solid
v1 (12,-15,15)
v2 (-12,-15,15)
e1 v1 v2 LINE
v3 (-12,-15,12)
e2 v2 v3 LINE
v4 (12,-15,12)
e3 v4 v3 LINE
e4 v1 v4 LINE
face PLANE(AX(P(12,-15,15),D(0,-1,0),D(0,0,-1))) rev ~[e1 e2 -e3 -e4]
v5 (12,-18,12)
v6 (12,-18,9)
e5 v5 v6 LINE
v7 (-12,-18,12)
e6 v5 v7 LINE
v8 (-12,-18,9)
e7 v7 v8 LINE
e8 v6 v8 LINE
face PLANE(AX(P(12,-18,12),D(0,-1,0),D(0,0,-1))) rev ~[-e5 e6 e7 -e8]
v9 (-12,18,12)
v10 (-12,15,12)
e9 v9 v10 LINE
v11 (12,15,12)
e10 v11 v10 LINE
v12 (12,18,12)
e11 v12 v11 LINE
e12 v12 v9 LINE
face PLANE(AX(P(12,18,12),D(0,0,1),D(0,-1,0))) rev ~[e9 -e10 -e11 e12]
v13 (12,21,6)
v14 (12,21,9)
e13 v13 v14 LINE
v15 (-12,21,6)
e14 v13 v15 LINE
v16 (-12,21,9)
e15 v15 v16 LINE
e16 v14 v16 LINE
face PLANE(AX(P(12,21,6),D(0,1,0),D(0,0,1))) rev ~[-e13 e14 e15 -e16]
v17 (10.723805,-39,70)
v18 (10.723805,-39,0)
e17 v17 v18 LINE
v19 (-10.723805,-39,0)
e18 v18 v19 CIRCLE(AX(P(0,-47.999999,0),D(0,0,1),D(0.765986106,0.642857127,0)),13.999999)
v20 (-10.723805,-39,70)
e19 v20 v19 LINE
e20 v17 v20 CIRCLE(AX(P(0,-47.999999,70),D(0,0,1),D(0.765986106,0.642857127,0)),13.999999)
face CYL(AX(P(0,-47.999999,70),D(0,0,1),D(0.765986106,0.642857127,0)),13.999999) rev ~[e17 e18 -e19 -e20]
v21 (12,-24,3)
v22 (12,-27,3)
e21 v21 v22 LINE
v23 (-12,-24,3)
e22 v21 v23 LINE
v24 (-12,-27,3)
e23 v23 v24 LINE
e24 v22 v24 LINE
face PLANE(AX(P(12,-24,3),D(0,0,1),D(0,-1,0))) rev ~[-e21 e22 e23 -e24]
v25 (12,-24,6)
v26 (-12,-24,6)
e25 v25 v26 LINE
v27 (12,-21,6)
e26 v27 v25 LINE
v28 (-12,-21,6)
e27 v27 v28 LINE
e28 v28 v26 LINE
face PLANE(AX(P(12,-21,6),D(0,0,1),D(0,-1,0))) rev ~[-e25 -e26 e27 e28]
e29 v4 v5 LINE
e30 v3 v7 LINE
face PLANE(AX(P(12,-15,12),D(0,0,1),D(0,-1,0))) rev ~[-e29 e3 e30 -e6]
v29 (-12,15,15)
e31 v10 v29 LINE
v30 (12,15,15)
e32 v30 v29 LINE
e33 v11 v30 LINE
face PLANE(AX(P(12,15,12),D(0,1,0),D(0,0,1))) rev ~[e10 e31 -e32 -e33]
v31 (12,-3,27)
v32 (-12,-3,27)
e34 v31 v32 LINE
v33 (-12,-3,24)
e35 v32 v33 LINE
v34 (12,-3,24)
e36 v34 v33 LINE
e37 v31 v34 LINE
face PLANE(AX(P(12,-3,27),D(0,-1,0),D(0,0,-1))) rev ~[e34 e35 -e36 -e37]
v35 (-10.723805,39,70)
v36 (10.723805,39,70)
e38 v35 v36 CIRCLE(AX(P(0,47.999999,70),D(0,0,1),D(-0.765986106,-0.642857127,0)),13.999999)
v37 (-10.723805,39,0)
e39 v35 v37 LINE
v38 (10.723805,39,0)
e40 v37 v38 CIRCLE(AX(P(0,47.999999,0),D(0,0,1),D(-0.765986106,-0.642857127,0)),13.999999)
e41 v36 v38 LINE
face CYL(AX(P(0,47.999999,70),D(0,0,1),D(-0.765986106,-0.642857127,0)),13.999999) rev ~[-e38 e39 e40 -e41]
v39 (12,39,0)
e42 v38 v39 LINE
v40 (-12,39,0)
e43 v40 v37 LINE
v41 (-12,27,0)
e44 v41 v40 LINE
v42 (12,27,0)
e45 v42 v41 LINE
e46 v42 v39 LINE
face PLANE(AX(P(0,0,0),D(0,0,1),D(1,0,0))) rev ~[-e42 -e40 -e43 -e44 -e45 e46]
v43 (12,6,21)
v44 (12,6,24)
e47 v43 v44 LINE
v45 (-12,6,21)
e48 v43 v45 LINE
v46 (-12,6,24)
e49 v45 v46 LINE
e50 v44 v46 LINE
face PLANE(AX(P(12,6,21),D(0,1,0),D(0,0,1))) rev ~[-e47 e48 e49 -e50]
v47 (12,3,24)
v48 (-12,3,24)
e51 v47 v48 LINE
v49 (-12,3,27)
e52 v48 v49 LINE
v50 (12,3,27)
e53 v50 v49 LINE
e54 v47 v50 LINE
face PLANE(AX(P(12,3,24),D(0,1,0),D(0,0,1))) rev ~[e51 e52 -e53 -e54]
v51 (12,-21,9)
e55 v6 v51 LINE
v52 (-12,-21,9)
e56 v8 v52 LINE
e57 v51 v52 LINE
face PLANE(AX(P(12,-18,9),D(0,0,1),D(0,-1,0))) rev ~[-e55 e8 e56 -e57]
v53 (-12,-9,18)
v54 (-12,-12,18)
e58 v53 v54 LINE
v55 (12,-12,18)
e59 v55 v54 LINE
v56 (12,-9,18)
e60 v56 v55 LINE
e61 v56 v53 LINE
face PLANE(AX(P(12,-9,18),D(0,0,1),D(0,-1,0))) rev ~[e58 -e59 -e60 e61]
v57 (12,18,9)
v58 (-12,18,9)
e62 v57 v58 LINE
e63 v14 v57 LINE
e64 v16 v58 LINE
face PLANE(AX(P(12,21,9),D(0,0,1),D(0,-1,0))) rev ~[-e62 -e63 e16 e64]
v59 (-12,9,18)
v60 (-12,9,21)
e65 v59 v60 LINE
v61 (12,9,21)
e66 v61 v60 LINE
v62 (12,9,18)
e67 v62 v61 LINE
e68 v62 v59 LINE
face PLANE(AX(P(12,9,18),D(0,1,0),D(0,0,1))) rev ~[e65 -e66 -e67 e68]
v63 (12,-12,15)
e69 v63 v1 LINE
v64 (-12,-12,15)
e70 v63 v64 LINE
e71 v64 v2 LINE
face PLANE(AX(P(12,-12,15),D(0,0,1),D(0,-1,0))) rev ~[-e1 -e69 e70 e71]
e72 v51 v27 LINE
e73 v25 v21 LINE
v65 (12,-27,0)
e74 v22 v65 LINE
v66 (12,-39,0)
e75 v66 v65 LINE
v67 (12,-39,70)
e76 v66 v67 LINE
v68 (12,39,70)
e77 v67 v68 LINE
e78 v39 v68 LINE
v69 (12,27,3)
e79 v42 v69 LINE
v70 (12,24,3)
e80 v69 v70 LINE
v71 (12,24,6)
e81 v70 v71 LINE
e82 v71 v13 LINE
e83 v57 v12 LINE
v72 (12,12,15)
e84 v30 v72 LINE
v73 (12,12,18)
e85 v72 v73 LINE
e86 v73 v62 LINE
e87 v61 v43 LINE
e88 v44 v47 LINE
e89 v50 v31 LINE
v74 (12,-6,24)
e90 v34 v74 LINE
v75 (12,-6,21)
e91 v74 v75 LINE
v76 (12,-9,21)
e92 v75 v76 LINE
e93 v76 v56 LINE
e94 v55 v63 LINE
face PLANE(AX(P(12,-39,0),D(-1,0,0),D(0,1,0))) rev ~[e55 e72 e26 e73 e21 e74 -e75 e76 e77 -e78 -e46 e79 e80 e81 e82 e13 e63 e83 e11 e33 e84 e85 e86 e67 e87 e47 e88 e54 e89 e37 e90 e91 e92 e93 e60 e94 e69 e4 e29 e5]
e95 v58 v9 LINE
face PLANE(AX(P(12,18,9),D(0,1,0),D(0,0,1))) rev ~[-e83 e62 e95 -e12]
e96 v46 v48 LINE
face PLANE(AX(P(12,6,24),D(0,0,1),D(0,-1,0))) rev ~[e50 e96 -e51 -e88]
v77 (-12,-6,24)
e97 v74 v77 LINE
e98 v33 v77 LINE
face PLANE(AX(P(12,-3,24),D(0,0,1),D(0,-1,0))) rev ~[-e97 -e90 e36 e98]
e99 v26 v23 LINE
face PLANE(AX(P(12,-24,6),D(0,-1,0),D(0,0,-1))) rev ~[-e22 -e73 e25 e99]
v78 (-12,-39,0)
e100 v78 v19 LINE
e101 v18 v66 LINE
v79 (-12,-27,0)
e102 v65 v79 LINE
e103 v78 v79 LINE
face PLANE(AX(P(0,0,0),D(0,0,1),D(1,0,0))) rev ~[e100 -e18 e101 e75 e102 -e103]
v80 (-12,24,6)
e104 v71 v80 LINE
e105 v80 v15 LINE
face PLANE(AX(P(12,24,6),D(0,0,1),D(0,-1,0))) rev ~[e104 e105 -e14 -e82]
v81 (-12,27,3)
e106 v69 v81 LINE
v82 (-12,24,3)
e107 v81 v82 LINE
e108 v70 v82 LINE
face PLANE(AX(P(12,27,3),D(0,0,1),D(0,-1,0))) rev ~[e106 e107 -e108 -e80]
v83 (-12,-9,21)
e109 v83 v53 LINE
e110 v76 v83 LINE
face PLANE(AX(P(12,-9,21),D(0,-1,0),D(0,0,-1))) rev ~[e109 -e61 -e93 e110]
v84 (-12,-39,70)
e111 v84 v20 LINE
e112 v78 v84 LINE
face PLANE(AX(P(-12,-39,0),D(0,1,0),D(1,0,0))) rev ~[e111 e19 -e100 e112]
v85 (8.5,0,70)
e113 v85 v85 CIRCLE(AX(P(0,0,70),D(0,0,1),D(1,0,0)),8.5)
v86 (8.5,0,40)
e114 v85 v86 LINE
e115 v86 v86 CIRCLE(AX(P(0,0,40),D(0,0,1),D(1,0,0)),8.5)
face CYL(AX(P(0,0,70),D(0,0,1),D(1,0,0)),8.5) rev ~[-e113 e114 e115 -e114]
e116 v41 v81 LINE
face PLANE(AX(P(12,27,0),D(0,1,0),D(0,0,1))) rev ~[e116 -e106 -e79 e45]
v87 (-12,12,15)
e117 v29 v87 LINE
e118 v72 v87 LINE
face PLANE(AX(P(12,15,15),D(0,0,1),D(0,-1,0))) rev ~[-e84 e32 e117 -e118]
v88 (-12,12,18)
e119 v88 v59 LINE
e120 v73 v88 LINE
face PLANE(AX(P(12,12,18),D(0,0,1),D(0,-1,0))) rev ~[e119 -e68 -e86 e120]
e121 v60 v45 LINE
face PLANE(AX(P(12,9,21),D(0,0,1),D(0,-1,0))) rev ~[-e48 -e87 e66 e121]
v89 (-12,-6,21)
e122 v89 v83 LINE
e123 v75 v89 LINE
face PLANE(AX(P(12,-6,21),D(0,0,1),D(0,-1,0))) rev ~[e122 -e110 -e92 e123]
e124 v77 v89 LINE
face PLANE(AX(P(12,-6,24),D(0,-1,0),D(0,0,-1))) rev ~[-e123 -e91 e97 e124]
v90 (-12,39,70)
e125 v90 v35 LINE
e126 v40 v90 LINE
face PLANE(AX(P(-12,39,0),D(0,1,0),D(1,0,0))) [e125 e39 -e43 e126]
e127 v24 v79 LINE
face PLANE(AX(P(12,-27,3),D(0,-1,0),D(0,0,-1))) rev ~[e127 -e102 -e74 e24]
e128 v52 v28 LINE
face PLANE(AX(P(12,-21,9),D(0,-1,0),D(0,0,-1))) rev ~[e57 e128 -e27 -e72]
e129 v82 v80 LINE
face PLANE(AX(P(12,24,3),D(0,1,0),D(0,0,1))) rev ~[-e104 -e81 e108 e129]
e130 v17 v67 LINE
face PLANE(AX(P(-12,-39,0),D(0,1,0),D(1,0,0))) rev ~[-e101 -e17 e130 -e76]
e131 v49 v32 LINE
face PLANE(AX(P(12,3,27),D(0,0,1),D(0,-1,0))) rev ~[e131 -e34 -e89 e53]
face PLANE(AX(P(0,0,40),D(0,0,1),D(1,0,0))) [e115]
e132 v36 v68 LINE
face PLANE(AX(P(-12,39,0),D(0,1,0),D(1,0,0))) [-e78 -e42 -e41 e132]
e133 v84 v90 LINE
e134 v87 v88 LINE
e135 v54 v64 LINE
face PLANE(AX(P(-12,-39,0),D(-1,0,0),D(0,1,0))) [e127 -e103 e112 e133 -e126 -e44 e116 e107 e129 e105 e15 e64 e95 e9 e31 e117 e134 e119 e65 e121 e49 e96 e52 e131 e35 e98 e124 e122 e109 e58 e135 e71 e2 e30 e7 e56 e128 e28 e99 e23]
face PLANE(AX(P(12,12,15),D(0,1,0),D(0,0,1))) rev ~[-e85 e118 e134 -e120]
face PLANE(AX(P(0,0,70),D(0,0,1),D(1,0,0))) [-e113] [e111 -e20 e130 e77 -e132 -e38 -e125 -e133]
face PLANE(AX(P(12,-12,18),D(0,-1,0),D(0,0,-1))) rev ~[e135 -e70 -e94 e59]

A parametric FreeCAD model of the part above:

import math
import FreeCAD as App
import Part
import Sketcher
Q = App.Units.Quantity

doc = App.newDocument("Part")
body = doc.addObject("PartDesign::Body", "Body")

# Sketch on XY plane
sketch1 = body.newObject("Sketcher::SketchObject", "Sketch")
sketch1.AttachmentSupport = (doc.getObject("XY_Plane"), [""])
sketch1.MapMode = "FlatFace"
sketch1.addGeometry(Part.LineSegment(App.Vector(-12, 39, 0), App.Vector(-12, -39, 0)), False)
sketch1.addGeometry(Part.LineSegment(App.Vector(-12, -39, 0), App.Vector(12, -39, 0)), False)
sketch1.addGeometry(Part.LineSegment(App.Vector(12, -39, 0), App.Vector(12, 39, 0)), False)
sketch1.addGeometry(Part.LineSegment(App.Vector(12, 39, 0), App.Vector(-12, 39, 0)), False)
sketch1.addConstraint(Sketcher.Constraint("Coincident", 0, 2, 1, 1))
sketch1.addConstraint(Sketcher.Constraint("Coincident", 1, 2, 2, 1))
sketch1.addConstraint(Sketcher.Constraint("Coincident", 2, 2, 3, 1))
sketch1.addConstraint(Sketcher.Constraint("Coincident", 3, 2, 0, 1))
sketch1.addConstraint(Sketcher.Constraint("Vertical", 0))
sketch1.addConstraint(Sketcher.Constraint("Horizontal", 1))
sketch1.addConstraint(Sketcher.Constraint("Vertical", 2))
sketch1.addConstraint(Sketcher.Constraint("Horizontal", 3))
sketch1.addConstraint(Sketcher.Constraint("Symmetric", 0, 2, 2, 2, -1, 1))
sketch1.addConstraint(Sketcher.Constraint("DistanceX", 1, 1, 1, 2, Q("24 mm")))
sketch1.addConstraint(Sketcher.Constraint("DistanceY", 0, 2, 0, 1, Q("78 mm")))
pad1 = body.newObject("PartDesign::Pad", "Pad")
pad1.Profile = sketch1
pad1.Length = 70

# Sketch on XY plane
sketch2 = body.newObject("Sketcher::SketchObject", "Sketch001")
sketch2.AttachmentSupport = (doc.getObject("XY_Plane"), [""])
sketch2.MapMode = "FlatFace"
sketch2.AttachmentOffset = App.Placement(App.Vector(0, 0, 70), App.Rotation())
sketch2.addGeometry(Part.Circle(App.Vector(0, 0, 0), App.Vector(0, 0, 1), 8), False)
sketch2.addConstraint(Sketcher.Constraint("Coincident", 0, 3, -1, 1))
sketch2.addConstraint(Sketcher.Constraint("Diameter", 0, Q("17 mm")))
pocket1 = body.newObject("PartDesign::Pocket", "Pocket")
pocket1.Profile = sketch2
pocket1.Length = 30

# Sketch on XY plane
sketch3 = body.newObject("Sketcher::SketchObject", "Sketch002")
sketch3.AttachmentSupport = (doc.getObject("XY_Plane"), [""])
sketch3.MapMode = "FlatFace"
sketch3.AttachmentOffset = App.Placement(App.Vector(0, 0, 70), App.Rotation())
sketch3.addGeometry(Part.ArcOfCircle(Part.Circle(App.Vector(0, 48, 0), App.Vector(0, 0, 1), 14), math.radians(-140), math.radians(-40)), False)
sketch3.addGeometry(Part.LineSegment(App.Vector(11, 39, 0), App.Vector(-11, 39, 0)), False)
sketch3.addGeometry(Part.ArcOfCircle(Part.Circle(App.Vector(0, -48, 0), App.Vector(0, 0, 1), 14), math.radians(40), math.radians(140)), False)
sketch3.addGeometry(Part.LineSegment(App.Vector(-11, -39, 0), App.Vector(11, -39, 0)), False)
sketch3.addConstraint(Sketcher.Constraint("Coincident", 0, 1, 1, 2))
sketch3.addConstraint(Sketcher.Constraint("Coincident", 1, 1, 0, 2))
sketch3.addConstraint(Sketcher.Constraint("Coincident", 2, 1, 3, 2))
sketch3.addConstraint(Sketcher.Constraint("Coincident", 3, 1, 2, 2))
sketch3.addConstraint(Sketcher.Constraint("Horizontal", 1))
sketch3.addConstraint(Sketcher.Constraint("Horizontal", 3))
sketch3.addConstraint(Sketcher.Constraint("Equal", 0, 2))
sketch3.addConstraint(Sketcher.Constraint("Symmetric", 0, 3, 2, 3, -1, 1))
sketch3.addConstraint(Sketcher.Constraint("Symmetric", 1, 1, 2, 1, -1))
sketch3.addConstraint(Sketcher.Constraint("Radius", 0, Q("13.999999 mm")))
sketch3.addConstraint(Sketcher.Constraint("DistanceY", -1, 1, 0, 3, Q("47.999999 mm")))
sketch3.addConstraint(Sketcher.Constraint("DistanceY", -1, 1, 0, 1, Q("39 mm")))
pocket2 = body.newObject("PartDesign::Pocket", "Pocket001")
pocket2.Profile = sketch3
pocket2.Length = 70

# Sketch on YZ plane
sketch4 = body.newObject("Sketcher::SketchObject", "Sketch003")
sketch4.AttachmentSupport = (doc.getObject("YZ_Plane"), [""])
sketch4.MapMode = "FlatFace"
sketch4.AttachmentOffset = App.Placement(App.Vector(0, 0, 12), App.Rotation())
sketch4.addGeometry(Part.LineSegment(App.Vector(-27, 3, 0), App.Vector(-27, 0, 0)), False)
sketch4.addGeometry(Part.LineSegment(App.Vector(-27, 0, 0), App.Vector(27, 0, 0)), False)
sketch4.addGeometry(Part.LineSegment(App.Vector(27, 0, 0), App.Vector(27, 3, 0)), False)
sketch4.addGeometry(Part.LineSegment(App.Vector(27, 3, 0), App.Vector(24, 3, 0)), False)
sketch4.addGeometry(Part.LineSegment(App.Vector(24, 3, 0), App.Vector(24, 6, 0)), False)
sketch4.addGeometry(Part.LineSegment(App.Vector(24, 6, 0), App.Vector(21, 6, 0)), False)
sketch4.addGeometry(Part.LineSegment(App.Vector(21, 6, 0), App.Vector(21, 9, 0)), False)
sketch4.addGeometry(Part.LineSegment(App.Vector(21, 9, 0), App.Vector(18, 9, 0)), False)
sketch4.addGeometry(Part.LineSegment(App.Vector(18, 9, 0), App.Vector(18, 12, 0)), False)
sketch4.addGeometry(Part.LineSegment(App.Vector(18, 12, 0), App.Vector(15, 12, 0)), False)
sketch4.addGeometry(Part.LineSegment(App.Vector(15, 12, 0), App.Vector(15, 15, 0)), False)
sketch4.addGeometry(Part.LineSegment(App.Vector(15, 15, 0), App.Vector(12, 15, 0)), False)
sketch4.addGeometry(Part.LineSegment(App.Vector(12, 15, 0), App.Vector(12, 18, 0)), False)
sketch4.addGeometry(Part.LineSegment(App.Vector(12, 18, 0), App.Vector(9, 18, 0)), False)
sketch4.addGeometry(Part.LineSegment(App.Vector(9, 18, 0), App.Vector(9, 21, 0)), False)
sketch4.addGeometry(Part.LineSegment(App.Vector(9, 21, 0), App.Vector(6, 21, 0)), False)
sketch4.addGeometry(Part.LineSegment(App.Vector(6, 21, 0), App.Vector(6, 24, 0)), False)
sketch4.addGeometry(Part.LineSegment(App.Vector(6, 24, 0), App.Vector(3, 24, 0)), False)
sketch4.addGeometry(Part.LineSegment(App.Vector(3, 24, 0), App.Vector(3, 27, 0)), False)
sketch4.addGeometry(Part.LineSegment(App.Vector(3, 27, 0), App.Vector(-3, 27, 0)), False)
sketch4.addGeometry(Part.LineSegment(App.Vector(-3, 27, 0), App.Vector(-3, 24, 0)), False)
sketch4.addGeometry(Part.LineSegment(App.Vector(-3, 24, 0), App.Vector(-6, 24, 0)), False)
sketch4.addGeometry(Part.LineSegment(App.Vector(-6, 24, 0), App.Vector(-6, 21, 0)), False)
sketch4.addGeometry(Part.LineSegment(App.Vector(-6, 21, 0), App.Vector(-9, 21, 0)), False)
sketch4.addGeometry(Part.LineSegment(App.Vector(-9, 21, 0), App.Vector(-9, 18, 0)), False)
sketch4.addGeometry(Part.LineSegment(App.Vector(-9, 18, 0), App.Vector(-12, 18, 0)), False)
sketch4.addGeometry(Part.LineSegment(App.Vector(-12, 18, 0), App.Vector(-12, 15, 0)), False)
sketch4.addGeometry(Part.LineSegment(App.Vector(-12, 15, 0), App.Vector(-15, 15, 0)), False)
sketch4.addGeometry(Part.LineSegment(App.Vector(-15, 15, 0), App.Vector(-15, 12, 0)), False)
sketch4.addGeometry(Part.LineSegment(App.Vector(-15, 12, 0), App.Vector(-18, 12, 0)), False)
sketch4.addGeometry(Part.LineSegment(App.Vector(-18, 12, 0), App.Vector(-18, 9, 0)), False)
sketch4.addGeometry(Part.LineSegment(App.Vector(-18, 9, 0), App.Vector(-21, 9, 0)), False)
sketch4.addGeometry(Part.LineSegment(App.Vector(-21, 9, 0), App.Vector(-21, 6, 0)), False)
sketch4.addGeometry(Part.LineSegment(App.Vector(-21, 6, 0), App.Vector(-24, 6, 0)), False)
sketch4.addGeometry(Part.LineSegment(App.Vector(-24, 6, 0), App.Vector(-24, 3, 0)), False)
sketch4.addGeometry(Part.LineSegment(App.Vector(-24, 3, 0), App.Vector(-27, 3, 0)), False)
sketch4.addConstraint(Sketcher.Constraint("Coincident", 0, 2, 1, 1))
sketch4.addConstraint(Sketcher.Constraint("Coincident", 1, 2, 2, 1))
sketch4.addConstraint(Sketcher.Constraint("Coincident", 2, 2, 3, 1))
sketch4.addConstraint(Sketcher.Constraint("Coincident", 3, 2, 4, 1))
sketch4.addConstraint(Sketcher.Constraint("Coincident", 4, 2, 5, 1))
sketch4.addConstraint(Sketcher.Constraint("Coincident", 5, 2, 6, 1))
sketch4.addConstraint(Sketcher.Constraint("Coincident", 6, 2, 7, 1))
sketch4.addConstraint(Sketcher.Constraint("Coincident", 7, 2, 8, 1))
sketch4.addConstraint(Sketcher.Constraint("Coincident", 8, 2, 9, 1))
sketch4.addConstraint(Sketcher.Constraint("Coincident", 9, 2, 10, 1))
sketch4.addConstraint(Sketcher.Constraint("Coincident", 10, 2, 11, 1))
sketch4.addConstraint(Sketcher.Constraint("Coincident", 11, 2, 12, 1))
sketch4.addConstraint(Sketcher.Constraint("Coincident", 12, 2, 13, 1))
sketch4.addConstraint(Sketcher.Constraint("Coincident", 13, 2, 14, 1))
sketch4.addConstraint(Sketcher.Constraint("Coincident", 14, 2, 15, 1))
sketch4.addConstraint(Sketcher.Constraint("Coincident", 15, 2, 16, 1))
sketch4.addConstraint(Sketcher.Constraint("Coincident", 16, 2, 17, 1))
sketch4.addConstraint(Sketcher.Constraint("Coincident", 17, 2, 18, 1))
sketch4.addConstraint(Sketcher.Constraint("Coincident", 18, 2, 19, 1))
sketch4.addConstraint(Sketcher.Constraint("Coincident", 19, 2, 20, 1))
sketch4.addConstraint(Sketcher.Constraint("Coincident", 20, 2, 21, 1))
sketch4.addConstraint(Sketcher.Constraint("Coincident", 21, 2, 22, 1))
sketch4.addConstraint(Sketcher.Constraint("Coincident", 22, 2, 23, 1))
sketch4.addConstraint(Sketcher.Constraint("Coincident", 23, 2, 24, 1))
sketch4.addConstraint(Sketcher.Constraint("Coincident", 24, 2, 25, 1))
sketch4.addConstraint(Sketcher.Constraint("Coincident", 25, 2, 26, 1))
sketch4.addConstraint(Sketcher.Constraint("Coincident", 26, 2, 27, 1))
sketch4.addConstraint(Sketcher.Constraint("Coincident", 27, 2, 28, 1))
sketch4.addConstraint(Sketcher.Constraint("Coincident", 28, 2, 29, 1))
sketch4.addConstraint(Sketcher.Constraint("Coincident", 29, 2, 30, 1))
sketch4.addConstraint(Sketcher.Constraint("Coincident", 30, 2, 31, 1))
sketch4.addConstraint(Sketcher.Constraint("Coincident", 31, 2, 32, 1))
sketch4.addConstraint(Sketcher.Constraint("Coincident", 32, 2, 33, 1))
sketch4.addConstraint(Sketcher.Constraint("Coincident", 33, 2, 34, 1))
sketch4.addConstraint(Sketcher.Constraint("Coincident", 34, 2, 35, 1))
sketch4.addConstraint(Sketcher.Constraint("Coincident", 35, 2, 0, 1))
sketch4.addConstraint(Sketcher.Constraint("Vertical", 0))
sketch4.addConstraint(Sketcher.Constraint("Horizontal", 1))
sketch4.addConstraint(Sketcher.Constraint("Vertical", 2))
sketch4.addConstraint(Sketcher.Constraint("Horizontal", 3))
sketch4.addConstraint(Sketcher.Constraint("Vertical", 4))
sketch4.addConstraint(Sketcher.Constraint("Horizontal", 5))
sketch4.addConstraint(Sketcher.Constraint("Vertical", 6))
sketch4.addConstraint(Sketcher.Constraint("Horizontal", 7))
sketch4.addConstraint(Sketcher.Constraint("Vertical", 8))
sketch4.addConstraint(Sketcher.Constraint("Horizontal", 9))
sketch4.addConstraint(Sketcher.Constraint("Vertical", 10))
sketch4.addConstraint(Sketcher.Constraint("Horizontal", 11))
sketch4.addConstraint(Sketcher.Constraint("Vertical", 12))
sketch4.addConstraint(Sketcher.Constraint("Horizontal", 13))
sketch4.addConstraint(Sketcher.Constraint("Vertical", 14))
sketch4.addConstraint(Sketcher.Constraint("Horizontal", 15))
sketch4.addConstraint(Sketcher.Constraint("Vertical", 16))
sketch4.addConstraint(Sketcher.Constraint("Horizontal", 17))
sketch4.addConstraint(Sketcher.Constraint("Vertical", 18))
sketch4.addConstraint(Sketcher.Constraint("Horizontal", 19))
sketch4.addConstraint(Sketcher.Constraint("Vertical", 20))
sketch4.addConstraint(Sketcher.Constraint("Horizontal", 21))
sketch4.addConstraint(Sketcher.Constraint("Vertical", 22))
sketch4.addConstraint(Sketcher.Constraint("Horizontal", 23))
sketch4.addConstraint(Sketcher.Constraint("Vertical", 24))
sketch4.addConstraint(Sketcher.Constraint("Horizontal", 25))
sketch4.addConstraint(Sketcher.Constraint("Vertical", 26))
sketch4.addConstraint(Sketcher.Constraint("Horizontal", 27))
sketch4.addConstraint(Sketcher.Constraint("Vertical", 28))
sketch4.addConstraint(Sketcher.Constraint("Horizontal", 29))
sketch4.addConstraint(Sketcher.Constraint("Vertical", 30))
sketch4.addConstraint(Sketcher.Constraint("Horizontal", 31))
sketch4.addConstraint(Sketcher.Constraint("Vertical", 32))
sketch4.addConstraint(Sketcher.Constraint("Horizontal", 33))
sketch4.addConstraint(Sketcher.Constraint("Vertical", 34))
sketch4.addConstraint(Sketcher.Constraint("Horizontal", 35))
sketch4.addConstraint(Sketcher.Constraint("Symmetric", 0, 2, 1, 2, -1, 1))
sketch4.addConstraint(Sketcher.Constraint("Symmetric", 17, 2, 20, 2, -2))
sketch4.addConstraint(Sketcher.Constraint("Symmetric", 15, 2, 22, 2, -2))
sketch4.addConstraint(Sketcher.Constraint("Symmetric", 13, 2, 24, 2, -2))
sketch4.addConstraint(Sketcher.Constraint("Symmetric", 11, 2, 26, 2, -2))
sketch4.addConstraint(Sketcher.Constraint("Symmetric", 9, 2, 28, 2, -2))
sketch4.addConstraint(Sketcher.Constraint("Symmetric", 7, 2, 30, 2, -2))
sketch4.addConstraint(Sketcher.Constraint("Symmetric", 5, 2, 32, 2, -2))
sketch4.addConstraint(Sketcher.Constraint("Symmetric", 3, 2, 34, 2, -2))
sketch4.addConstraint(Sketcher.Constraint("Equal", 3, 5))
sketch4.addConstraint(Sketcher.Constraint("Equal", 5, 7))
sketch4.addConstraint(Sketcher.Constraint("Equal", 7, 9))
sketch4.addConstraint(Sketcher.Constraint("Equal", 9, 11))
sketch4.addConstraint(Sketcher.Constraint("Equal", 11, 13))
sketch4.addConstraint(Sketcher.Constraint("Equal", 13, 15))
sketch4.addConstraint(Sketcher.Constraint("Equal", 15, 17))
sketch4.addConstraint(Sketcher.Constraint("Equal", 35, 0))
sketch4.addConstraint(Sketcher.Constraint("Equal", 2, 4))
sketch4.addConstraint(Sketcher.Constraint("Equal", 4, 6))
sketch4.addConstraint(Sketcher.Constraint("Equal", 6, 8))
sketch4.addConstraint(Sketcher.Constraint("Equal", 8, 10))
sketch4.addConstraint(Sketcher.Constraint("Equal", 10, 12))
sketch4.addConstraint(Sketcher.Constraint("Equal", 12, 14))
sketch4.addConstraint(Sketcher.Constraint("Equal", 14, 16))
sketch4.addConstraint(Sketcher.Constraint("Equal", 16, 18))
sketch4.addConstraint(Sketcher.Constraint("DistanceX", 1, 1, 1, 2, Q("54 mm")))
sketch4.addConstraint(Sketcher.Constraint("DistanceX", 3, 2, 3, 1, Q("3 mm")))
pocket3 = body.newObject("PartDesign::Pocket", "Pocket002")
pocket3.Profile = sketch4
pocket3.Length = 24

doc.recompute()
